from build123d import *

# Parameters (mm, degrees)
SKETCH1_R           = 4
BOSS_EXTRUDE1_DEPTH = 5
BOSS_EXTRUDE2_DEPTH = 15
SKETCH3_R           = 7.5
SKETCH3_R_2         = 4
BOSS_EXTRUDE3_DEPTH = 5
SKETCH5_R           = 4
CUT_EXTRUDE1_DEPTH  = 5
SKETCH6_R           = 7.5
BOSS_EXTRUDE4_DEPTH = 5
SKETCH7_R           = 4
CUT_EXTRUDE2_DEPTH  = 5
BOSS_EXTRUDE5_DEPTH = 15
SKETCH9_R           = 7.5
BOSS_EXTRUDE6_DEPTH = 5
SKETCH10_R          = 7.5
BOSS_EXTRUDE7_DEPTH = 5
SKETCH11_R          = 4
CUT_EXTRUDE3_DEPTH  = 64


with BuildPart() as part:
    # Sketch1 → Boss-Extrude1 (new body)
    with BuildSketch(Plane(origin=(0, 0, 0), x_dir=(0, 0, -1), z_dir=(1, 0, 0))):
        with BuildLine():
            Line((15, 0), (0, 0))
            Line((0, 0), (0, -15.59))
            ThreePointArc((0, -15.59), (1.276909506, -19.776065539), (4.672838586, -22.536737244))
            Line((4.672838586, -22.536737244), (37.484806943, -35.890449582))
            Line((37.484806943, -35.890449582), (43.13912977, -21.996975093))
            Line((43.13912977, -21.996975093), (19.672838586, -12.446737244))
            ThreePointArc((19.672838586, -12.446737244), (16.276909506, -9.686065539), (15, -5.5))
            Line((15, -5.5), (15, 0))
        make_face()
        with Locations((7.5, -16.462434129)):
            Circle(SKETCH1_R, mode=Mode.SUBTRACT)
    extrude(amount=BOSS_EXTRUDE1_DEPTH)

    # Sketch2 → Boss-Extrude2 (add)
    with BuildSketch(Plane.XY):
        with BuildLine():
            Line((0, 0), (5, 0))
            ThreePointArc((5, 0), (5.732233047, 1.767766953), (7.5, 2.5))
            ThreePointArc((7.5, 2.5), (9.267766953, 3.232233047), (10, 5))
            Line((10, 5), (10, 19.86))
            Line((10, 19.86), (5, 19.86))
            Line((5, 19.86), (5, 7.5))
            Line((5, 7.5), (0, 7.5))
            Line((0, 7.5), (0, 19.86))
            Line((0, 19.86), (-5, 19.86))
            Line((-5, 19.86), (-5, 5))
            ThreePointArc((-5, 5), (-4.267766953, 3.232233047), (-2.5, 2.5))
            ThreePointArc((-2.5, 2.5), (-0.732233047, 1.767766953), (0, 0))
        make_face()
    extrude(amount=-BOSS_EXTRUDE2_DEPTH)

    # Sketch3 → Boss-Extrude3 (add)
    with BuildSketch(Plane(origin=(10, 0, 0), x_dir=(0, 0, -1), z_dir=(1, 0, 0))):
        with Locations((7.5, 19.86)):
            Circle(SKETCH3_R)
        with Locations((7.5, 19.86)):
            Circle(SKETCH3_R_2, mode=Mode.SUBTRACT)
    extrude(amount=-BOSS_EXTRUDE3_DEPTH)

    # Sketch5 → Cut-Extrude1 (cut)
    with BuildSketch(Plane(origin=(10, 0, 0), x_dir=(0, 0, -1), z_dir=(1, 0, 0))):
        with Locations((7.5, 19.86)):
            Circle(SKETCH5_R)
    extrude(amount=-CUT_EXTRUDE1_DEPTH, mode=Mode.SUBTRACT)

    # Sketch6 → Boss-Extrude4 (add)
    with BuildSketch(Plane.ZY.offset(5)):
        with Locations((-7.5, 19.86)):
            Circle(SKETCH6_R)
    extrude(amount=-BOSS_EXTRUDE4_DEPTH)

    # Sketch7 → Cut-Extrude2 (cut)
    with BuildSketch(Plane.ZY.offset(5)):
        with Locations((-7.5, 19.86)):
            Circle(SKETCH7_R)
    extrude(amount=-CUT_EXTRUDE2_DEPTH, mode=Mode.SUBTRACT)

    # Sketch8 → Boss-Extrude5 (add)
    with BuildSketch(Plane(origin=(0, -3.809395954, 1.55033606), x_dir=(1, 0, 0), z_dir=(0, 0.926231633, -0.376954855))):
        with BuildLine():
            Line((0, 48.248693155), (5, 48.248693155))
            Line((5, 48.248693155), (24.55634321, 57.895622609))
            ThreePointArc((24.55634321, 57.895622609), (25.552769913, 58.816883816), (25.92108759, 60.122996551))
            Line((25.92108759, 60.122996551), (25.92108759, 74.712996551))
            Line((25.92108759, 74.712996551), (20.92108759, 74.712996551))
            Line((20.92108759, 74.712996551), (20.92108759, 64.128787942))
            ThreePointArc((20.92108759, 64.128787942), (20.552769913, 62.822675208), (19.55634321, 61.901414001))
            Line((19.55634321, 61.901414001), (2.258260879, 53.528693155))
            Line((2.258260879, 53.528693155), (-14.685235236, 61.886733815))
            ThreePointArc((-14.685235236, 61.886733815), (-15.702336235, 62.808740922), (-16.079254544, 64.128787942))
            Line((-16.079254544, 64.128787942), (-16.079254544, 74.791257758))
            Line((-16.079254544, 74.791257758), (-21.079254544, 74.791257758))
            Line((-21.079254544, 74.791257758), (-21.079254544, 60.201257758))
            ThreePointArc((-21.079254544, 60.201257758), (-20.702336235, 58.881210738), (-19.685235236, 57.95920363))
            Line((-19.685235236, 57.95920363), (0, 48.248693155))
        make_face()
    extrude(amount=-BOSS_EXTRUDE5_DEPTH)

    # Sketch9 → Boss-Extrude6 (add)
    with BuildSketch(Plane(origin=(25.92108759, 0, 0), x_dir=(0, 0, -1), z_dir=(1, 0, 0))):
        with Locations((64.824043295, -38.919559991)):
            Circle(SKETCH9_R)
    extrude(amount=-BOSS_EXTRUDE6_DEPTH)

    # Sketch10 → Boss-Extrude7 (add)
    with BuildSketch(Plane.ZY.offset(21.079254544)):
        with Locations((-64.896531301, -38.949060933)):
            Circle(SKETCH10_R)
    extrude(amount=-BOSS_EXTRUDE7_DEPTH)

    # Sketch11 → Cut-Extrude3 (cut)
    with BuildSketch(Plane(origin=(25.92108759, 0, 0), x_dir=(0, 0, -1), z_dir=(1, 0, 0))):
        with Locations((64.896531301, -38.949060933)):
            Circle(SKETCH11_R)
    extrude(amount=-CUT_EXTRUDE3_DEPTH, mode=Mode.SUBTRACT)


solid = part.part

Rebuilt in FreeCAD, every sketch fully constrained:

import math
import FreeCAD as App
import Part
import Sketcher

doc = App.newDocument("Part")
body = doc.addObject("PartDesign::Body", "Body")

# Sketch on YZ plane
sketch1 = body.newObject("Sketcher::SketchObject", "Sketch")
sketch1.AttachmentSupport = (doc.getObject("YZ_Plane"), [""])
sketch1.MapMode = "FlatFace"
sketch1.addGeometry(Part.LineSegment(App.Vector(0, -15, 0), App.Vector(0, 0, 0)), False)
sketch1.addGeometry(Part.LineSegment(App.Vector(0, 0, 0), App.Vector(-15.59, 0, 0)), False)
sketch1.addGeometry(Part.ArcOfCircle(Part.Circle(App.Vector(-15.59, -7.5, 0), App.Vector(0, 0, 1), 7.5), math.radians(90), math.radians(157.854814)), False)
sketch1.addGeometry(Part.LineSegment(App.Vector(-22.536737, -4.672839, 0), App.Vector(-35.89045, -37.484807, 0)), False)
sketch1.addGeometry(Part.LineSegment(App.Vector(-35.89045, -37.484807, 0), App.Vector(-21.996975, -43.13913, 0)), False)
sketch1.addGeometry(Part.LineSegment(App.Vector(-21.996975, -43.13913, 0), App.Vector(-12.446737, -19.672839, 0)), False)
sketch1.addGeometry(Part.ArcOfCircle(Part.Circle(App.Vector(-5.5, -22.5, 0), App.Vector(0, 0, 1), 7.5), math.radians(90), math.radians(157.854814)), False)
sketch1.addGeometry(Part.LineSegment(App.Vector(-5.5, -15, 0), App.Vector(0, -15, 0)), False)
sketch1.addGeometry(Part.Circle(App.Vector(-16.462434, -7.5, 0), App.Vector(0, 0, 1), 4), False)
sketch1.addConstraint(Sketcher.Constraint("Coincident", 0, 2, 1, 1))
sketch1.addConstraint(Sketcher.Constraint("Tangent", 1, 2, 2, 1))
sketch1.addConstraint(Sketcher.Constraint("Tangent", 2, 2, 3, 1))
sketch1.addConstraint(Sketcher.Constraint("Coincident", 3, 2, 4, 1))
sketch1.addConstraint(Sketcher.Constraint("Coincident", 4, 2, 5, 1))
sketch1.addConstraint(Sketcher.Constraint("Tangent", 5, 2, 6, 2))
sketch1.addConstraint(Sketcher.Constraint("Tangent", 6, 1, 7, 1))
sketch1.addConstraint(Sketcher.Constraint("Coincident", 7, 2, 0, 1))
sketch1.addConstraint(Sketcher.Constraint("Vertical", 0))
sketch1.addConstraint(Sketcher.Constraint("Horizontal", 1))
sketch1.addConstraint(Sketcher.Constraint("Horizontal", 7))
sketch1.addConstraint(Sketcher.Constraint("Coincident", 0, 2, -1, 1))
sketch1.addConstraint(Sketcher.Constraint("Equal", 2, 6))
sketch1.addConstraint(Sketcher.Constraint("Perpendicular", 3, 4))
sketch1.addConstraint(Sketcher.Constraint("Perpendicular", 4, 5))
sketch1.addConstraint(Sketcher.Constraint("Horizontal", 2, 3, 8, 3))
sketch1.addConstraint(Sketcher.Constraint("Diameter", 8, 8.0))
sketch1.addConstraint(Sketcher.Constraint("Radius", 2, 7.5))
sketch1.addConstraint(Sketcher.Constraint("DistanceY", 0, 1, 0, 2, 15.0))
sketch1.addConstraint(Sketcher.Constraint("Distance", 4, 15.0))
sketch1.addConstraint(Sketcher.Constraint("DistanceX", 7, 1, 7, 2, 5.5))
sketch1.addConstraint(Sketcher.Constraint("DistanceX", 1, 2, 1, 1, 15.59))
sketch1.addConstraint(Sketcher.Constraint("Distance", 3, 35.42523))
sketch1.addConstraint(Sketcher.Constraint("DistanceX", 4, 2, 8, 3, 5.534541))
pad1 = body.newObject("PartDesign::Pad", "Pad")
pad1.Profile = sketch1
pad1.Length = 5

# Sketch on XY plane
sketch2 = body.newObject("Sketcher::SketchObject", "Sketch001")
sketch2.AttachmentSupport = (doc.getObject("XY_Plane"), [""])
sketch2.MapMode = "FlatFace"
sketch2.addGeometry(Part.LineSegment(App.Vector(0, 0, 0), App.Vector(5, 0, 0)), False)
sketch2.addGeometry(Part.ArcOfCircle(Part.Circle(App.Vector(7.5, 0, 0), App.Vector(0, 0, 1), 2.5), math.radians(90), math.radians(180)), False)
sketch2.addGeometry(Part.ArcOfCircle(Part.Circle(App.Vector(7.5, 5, 0), App.Vector(0, 0, 1), 2.5), math.radians(-90), math.radians(0)), False)
sketch2.addGeometry(Part.LineSegment(App.Vector(10, 5, 0), App.Vector(10, 19.86, 0)), False)
sketch2.addGeometry(Part.LineSegment(App.Vector(10, 19.86, 0), App.Vector(5, 19.86, 0)), False)
sketch2.addGeometry(Part.LineSegment(App.Vector(5, 19.86, 0), App.Vector(5, 7.5, 0)), False)
sketch2.addGeometry(Part.LineSegment(App.Vector(5, 7.5, 0), App.Vector(0, 7.5, 0)), False)
sketch2.addGeometry(Part.LineSegment(App.Vector(0, 7.5, 0), App.Vector(0, 19.86, 0)), False)
sketch2.addGeometry(Part.LineSegment(App.Vector(0, 19.86, 0), App.Vector(-5, 19.86, 0)), False)
sketch2.addGeometry(Part.LineSegment(App.Vector(-5, 19.86, 0), App.Vector(-5, 5, 0)), False)
sketch2.addGeometry(Part.ArcOfCircle(Part.Circle(App.Vector(-2.5, 5, 0), App.Vector(0, 0, 1), 2.5), math.radians(180), math.radians(270)), False)
sketch2.addGeometry(Part.ArcOfCircle(Part.Circle(App.Vector(-2.5, 0, 0), App.Vector(0, 0, 1), 2.5), math.radians(0), math.radians(90)), False)
sketch2.addConstraint(Sketcher.Constraint("Coincident", 0, 2, 1, 2))
sketch2.addConstraint(Sketcher.Constraint("Tangent", 1, 1, 2, 1))
sketch2.addConstraint(Sketcher.Constraint("Tangent", 2, 2, 3, 1))
sketch2.addConstraint(Sketcher.Constraint("Coincident", 3, 2, 4, 1))
sketch2.addConstraint(Sketcher.Constraint("Coincident", 4, 2, 5, 1))
sketch2.addConstraint(Sketcher.Constraint("Coincident", 5, 2, 6, 1))
sketch2.addConstraint(Sketcher.Constraint("Coincident", 6, 2, 7, 1))
sketch2.addConstraint(Sketcher.Constraint("Coincident", 7, 2, 8, 1))
sketch2.addConstraint(Sketcher.Constraint("Coincident", 8, 2, 9, 1))
sketch2.addConstraint(Sketcher.Constraint("Tangent", 9, 2, 10, 1))
sketch2.addConstraint(Sketcher.Constraint("Tangent", 10, 2, 11, 2))
sketch2.addConstraint(Sketcher.Constraint("Coincident", 11, 1, 0, 1))
sketch2.addConstraint(Sketcher.Constraint("Horizontal", 0))
sketch2.addConstraint(Sketcher.Constraint("Vertical", 3))
sketch2.addConstraint(Sketcher.Constraint("Horizontal", 4))
sketch2.addConstraint(Sketcher.Constraint("Vertical", 5))
sketch2.addConstraint(Sketcher.Constraint("Horizontal", 6))
sketch2.addConstraint(Sketcher.Constraint("Vertical", 7))
sketch2.addConstraint(Sketcher.Constraint("Horizontal", 8))
sketch2.addConstraint(Sketcher.Constraint("Vertical", 9))
sketch2.addConstraint(Sketcher.Constraint("Coincident", 11, 1, -1, 1))
sketch2.addConstraint(Sketcher.Constraint("Equal", 1, 2))
sketch2.addConstraint(Sketcher.Constraint("Equal", 2, 10))
sketch2.addConstraint(Sketcher.Constraint("Equal", 10, 11))
sketch2.addConstraint(Sketcher.Constraint("Symmetric", 4, 2, 8, 2, -2))
sketch2.addConstraint(Sketcher.Constraint("PointOnObject", 1, 3, -1))
sketch2.addConstraint(Sketcher.Constraint("PointOnObject", 11, 3, -1))
sketch2.addConstraint(Sketcher.Constraint("PointOnObject", 6, 2, -2))
sketch2.addConstraint(Sketcher.Constraint("Vertical", 1, 3, 2, 3))
sketch2.addConstraint(Sketcher.Constraint("Vertical", 10, 3, 11, 3))
sketch2.addConstraint(Sketcher.Constraint("Vertical", 0, 2, 4, 2))
sketch2.addConstraint(Sketcher.Constraint("Radius", 1, 2.5))
sketch2.addConstraint(Sketcher.Constraint("DistanceY", 1, 1, 5, 2, 5.0))
sketch2.addConstraint(Sketcher.Constraint("DistanceY", 3, 1, 3, 2, 14.86))
pad2 = body.newObject("PartDesign::Pad", "Pad001")
pad2.Profile = sketch2
pad2.Length = 15
pad2.Reversed = True

# Sketch on YZ plane
sketch3 = body.newObject("Sketcher::SketchObject", "Sketch002")
sketch3.AttachmentSupport = (doc.getObject("YZ_Plane"), [""])
sketch3.MapMode = "FlatFace"
sketch3.AttachmentOffset = App.Placement(App.Vector(0, 0, 10), App.Rotation())
sketch3.addGeometry(Part.Circle(App.Vector(19.86, -7.5, 0), App.Vector(0, 0, 1), 7.5), False)
sketch3.addGeometry(Part.Circle(App.Vector(19.86, -7.5, 0), App.Vector(0, 0, 1), 4), False)
sketch3.addConstraint(Sketcher.Constraint("Coincident", 1, 3, 0, 3))
sketch3.addConstraint(Sketcher.Constraint("Diameter", 0, 15.0))
sketch3.addConstraint(Sketcher.Constraint("Diameter", 1, 8.0))
sketch3.addConstraint(Sketcher.Constraint("DistanceY", 0, 3, -1, 1, 7.5))
sketch3.addConstraint(Sketcher.Constraint("DistanceX", -1, 1, 0, 3, 19.86))
pad3 = body.newObject("PartDesign::Pad", "Pad002")
pad3.Profile = sketch3
pad3.Length = 5
pad3.Reversed = True

# Sketch on YZ plane
sketch4 = body.newObject("Sketcher::SketchObject", "Sketch003")
sketch4.AttachmentSupport = (doc.getObject("YZ_Plane"), [""])
sketch4.MapMode = "FlatFace"
sketch4.AttachmentOffset = App.Placement(App.Vector(0, 0, 10), App.Rotation())
sketch4.addGeometry(Part.Circle(App.Vector(19.86, -7.5, 0), App.Vector(0, 0, 1), 4), False)
sketch4.addConstraint(Sketcher.Constraint("Diameter", 0, 8.0))
sketch4.addConstraint(Sketcher.Constraint("DistanceY", 0, 3, -1, 1, 7.5))
sketch4.addConstraint(Sketcher.Constraint("DistanceX", -1, 1, 0, 3, 19.86))
pocket1 = body.newObject("PartDesign::Pocket", "Pocket")
pocket1.Profile = sketch4
pocket1.Length = 5

# Sketch on YZ plane
sketch5 = body.newObject("Sketcher::SketchObject", "Sketch004")
sketch5.AttachmentSupport = (doc.getObject("YZ_Plane"), [""])
sketch5.MapMode = "FlatFace"
sketch5.AttachmentOffset = App.Placement(App.Vector(0, 0, -5), App.Rotation())
sketch5.addGeometry(Part.Circle(App.Vector(19.86, -7.5, 0), App.Vector(0, 0, 1), 7.5), False)
sketch5.addConstraint(Sketcher.Constraint("Diameter", 0, 15.0))
sketch5.addConstraint(Sketcher.Constraint("DistanceY", 0, 3, -1, 1, 7.5))
sketch5.addConstraint(Sketcher.Constraint("DistanceX", -1, 1, 0, 3, 19.86))
pad4 = body.newObject("PartDesign::Pad", "Pad003")
pad4.Profile = sketch5
pad4.Length = 5

# Sketch on YZ plane
sketch6 = body.newObject("Sketcher::SketchObject", "Sketch005")
sketch6.AttachmentSupport = (doc.getObject("YZ_Plane"), [""])
sketch6.MapMode = "FlatFace"
sketch6.AttachmentOffset = App.Placement(App.Vector(0, 0, -5), App.Rotation())
sketch6.addGeometry(Part.Circle(App.Vector(19.86, -7.5, 0), App.Vector(0, 0, 1), 4), False)
sketch6.addConstraint(Sketcher.Constraint("Diameter", 0, 8.0))
sketch6.addConstraint(Sketcher.Constraint("DistanceY", 0, 3, -1, 1, 7.5))
sketch6.addConstraint(Sketcher.Constraint("DistanceX", -1, 1, 0, 3, 19.86))
pocket2 = body.newObject("PartDesign::Pocket", "Pocket001")
pocket2.Profile = sketch6
pocket2.Length = 5
pocket2.Reversed = True

# Sketch on an angled plane
sketch7 = body.newObject("Sketcher::SketchObject", "Sketch006")
sketch7.Placement = App.Placement(App.Vector(0, -3.809396, 1.550336), App.Rotation(App.Vector(1, 0, 0), App.Vector(0, -0.376954855, -0.926231633), App.Vector(0, 0.926231633, -0.376954855), "ZXY"))
sketch7.addGeometry(Part.LineSegment(App.Vector(0, 48.248693, 0), App.Vector(5, 48.248693, 0)), False)
sketch7.addGeometry(Part.LineSegment(App.Vector(5, 48.248693, 0), App.Vector(24.556343, 57.895623, 0)), False)
sketch7.addGeometry(Part.ArcOfCircle(Part.Circle(App.Vector(23.421088, 60.122997, 0), App.Vector(0, 0, 1), 2.5), math.radians(-62.992814), math.radians(0)), False)
sketch7.addGeometry(Part.LineSegment(App.Vector(25.921088, 60.122997, 0), App.Vector(25.921088, 74.712997, 0)), False)
sketch7.addGeometry(Part.LineSegment(App.Vector(25.921088, 74.712997, 0), App.Vector(20.921088, 74.712997, 0)), False)
sketch7.addGeometry(Part.LineSegment(App.Vector(20.921088, 74.712997, 0), App.Vector(20.921088, 64.128788, 0)), False)
sketch7.addGeometry(Part.ArcOfCircle(Part.Circle(App.Vector(18.421088, 64.128788, 0), App.Vector(0, 0, 1), 2.5), math.radians(-62.992814), math.radians(0)), False)
sketch7.addGeometry(Part.LineSegment(App.Vector(19.556343, 61.901414, 0), App.Vector(2.258261, 53.528693, 0)), False)
sketch7.addGeometry(Part.LineSegment(App.Vector(2.258261, 53.528693, 0), App.Vector(-14.685235, 61.886734, 0)), False)
sketch7.addGeometry(Part.ArcOfCircle(Part.Circle(App.Vector(-13.579255, 64.128788, 0), App.Vector(0, 0, 1), 2.5), math.radians(180), math.radians(243.743382)), False)
sketch7.addGeometry(Part.LineSegment(App.Vector(-16.079255, 64.128788, 0), App.Vector(-16.079255, 74.791258, 0)), False)
sketch7.addGeometry(Part.LineSegment(App.Vector(-16.079255, 74.791258, 0), App.Vector(-21.079255, 74.791258, 0)), False)
sketch7.addGeometry(Part.LineSegment(App.Vector(-21.079255, 74.791258, 0), App.Vector(-21.079255, 60.201258, 0)), False)
sketch7.addGeometry(Part.ArcOfCircle(Part.Circle(App.Vector(-18.579255, 60.201258, 0), App.Vector(0, 0, 1), 2.5), math.radians(180), math.radians(243.743382)), False)
sketch7.addGeometry(Part.LineSegment(App.Vector(-19.685235, 57.959204, 0), App.Vector(0, 48.248693, 0)), False)
sketch7.addConstraint(Sketcher.Constraint("Coincident", 0, 2, 1, 1))
sketch7.addConstraint(Sketcher.Constraint("Coincident", 1, 2, 2, 1))
sketch7.addConstraint(Sketcher.Constraint("Tangent", 2, 2, 3, 1))
sketch7.addConstraint(Sketcher.Constraint("Coincident", 3, 2, 4, 1))
sketch7.addConstraint(Sketcher.Constraint("Coincident", 4, 2, 5, 1))
sketch7.addConstraint(Sketcher.Constraint("Tangent", 5, 2, 6, 2))
sketch7.addConstraint(Sketcher.Constraint("Coincident", 6, 1, 7, 1))
sketch7.addConstraint(Sketcher.Constraint("Coincident", 7, 2, 8, 1))
sketch7.addConstraint(Sketcher.Constraint("Tangent", 8, 2, 9, 2))
sketch7.addConstraint(Sketcher.Constraint("Tangent", 9, 1, 10, 1))
sketch7.addConstraint(Sketcher.Constraint("Coincident", 10, 2, 11, 1))
sketch7.addConstraint(Sketcher.Constraint("Coincident", 11, 2, 12, 1))
sketch7.addConstraint(Sketcher.Constraint("Tangent", 12, 2, 13, 1))
sketch7.addConstraint(Sketcher.Constraint("Tangent", 13, 2, 14, 1))
sketch7.addConstraint(Sketcher.Constraint("Coincident", 14, 2, 0, 1))
sketch7.addConstraint(Sketcher.Constraint("Horizontal", 0))
sketch7.addConstraint(Sketcher.Constraint("Vertical", 3))
sketch7.addConstraint(Sketcher.Constraint("Horizontal", 4))
sketch7.addConstraint(Sketcher.Constraint("Vertical", 5))
sketch7.addConstraint(Sketcher.Constraint("Vertical", 10))
sketch7.addConstraint(Sketcher.Constraint("Horizontal", 11))
sketch7.addConstraint(Sketcher.Constraint("Vertical", 12))
sketch7.addConstraint(Sketcher.Constraint("Equal", 2, 6))
sketch7.addConstraint(Sketcher.Constraint("Equal", 6, 9))
sketch7.addConstraint(Sketcher.Constraint("Equal", 9, 13))
sketch7.addConstraint(Sketcher.Constraint("PointOnObject", 14, 2, -2))
sketch7.addConstraint(Sketcher.Constraint("Parallel", 8, 14))
sketch7.addConstraint(Sketcher.Constraint("Horizontal", 6, 3, 9, 3))
sketch7.addConstraint(Sketcher.Constraint("Equal", 0, 4))
sketch7.addConstraint(Sketcher.Constraint("Equal", 4, 11))
sketch7.addConstraint(Sketcher.Constraint("Equal", 3, 12))
sketch7.addConstraint(Sketcher.Constraint("Radius", 2, 2.5))
sketch7.addConstraint(Sketcher.Constraint("DistanceX", 0, 1, 0, 2, 5.0))
sketch7.addConstraint(Sketcher.Constraint("DistanceX", 6, 1, 1, 2, 5.0))
sketch7.addConstraint(Sketcher.Constraint("DistanceY", 3, 1, 3, 2, 14.59))
sketch7.addConstraint(Sketcher.Constraint("Distance", 14, 21.95))
sketch7.addConstraint(Sketcher.Constraint("DistanceY", 0, 2, 7, 2, 5.28))
sketch7.addConstraint(Sketcher.Constraint("DistanceY", 5, 2, 5, 1, 10.584209))
sketch7.addConstraint(Sketcher.Constraint("DistanceY", 10, 1, 10, 2, 10.66247))
sketch7.addConstraint(Sketcher.Constraint("Distance", 1, 21.806279))
sketch7.addConstraint(Sketcher.Constraint("Distance", 7, 19.217859))
sketch7.addConstraint(Sketcher.Constraint("DistanceY", 0, 2, 1, 2, 9.646929))
sketch7.addConstraint(Sketcher.Constraint("DistanceY", -1, 1, 2, 3, 60.122997))
pad5 = body.newObject("PartDesign::Pad", "Pad004")
pad5.Profile = sketch7
pad5.Length = 15
pad5.Reversed = True

# Sketch on YZ plane
sketch8 = body.newObject("Sketcher::SketchObject", "Sketch007")
sketch8.AttachmentSupport = (doc.getObject("YZ_Plane"), [""])
sketch8.MapMode = "FlatFace"
sketch8.AttachmentOffset = App.Placement(App.Vector(0, 0, 25.921088), App.Rotation())
sketch8.addGeometry(Part.Circle(App.Vector(-38.91956, -64.824043, 0), App.Vector(0, 0, 1), 7.5), False)
sketch8.addConstraint(Sketcher.Constraint("Diameter", 0, 15.0))
sketch8.addConstraint(Sketcher.Constraint("DistanceX", 0, 3, -1, 1, 38.91956))
sketch8.addConstraint(Sketcher.Constraint("DistanceY", 0, 3, -1, 1, 64.824043))
pad6 = body.newObject("PartDesign::Pad", "Pad005")
pad6.Profile = sketch8
pad6.Length = 5
pad6.Reversed = True

# Sketch on YZ plane
sketch9 = body.newObject("Sketcher::SketchObject", "Sketch008")
sketch9.AttachmentSupport = (doc.getObject("YZ_Plane"), [""])
sketch9.MapMode = "FlatFace"
sketch9.AttachmentOffset = App.Placement(App.Vector(0, 0, -21.079255), App.Rotation())
sketch9.addGeometry(Part.Circle(App.Vector(-38.949061, -64.896531, 0), App.Vector(0, 0, 1), 7.5), False)
sketch9.addConstraint(Sketcher.Constraint("Diameter", 0, 15.0))
sketch9.addConstraint(Sketcher.Constraint("DistanceX", 0, 3, -1, 1, 38.949061))
sketch9.addConstraint(Sketcher.Constraint("DistanceY", 0, 3, -1, 1, 64.896531))
pad7 = body.newObject("PartDesign::Pad", "Pad006")
pad7.Profile = sketch9
pad7.Length = 5

# Sketch on YZ plane
sketch10 = body.newObject("Sketcher::SketchObject", "Sketch009")
sketch10.AttachmentSupport = (doc.getObject("YZ_Plane"), [""])
sketch10.MapMode = "FlatFace"
sketch10.AttachmentOffset = App.Placement(App.Vector(0, 0, 25.921088), App.Rotation())
sketch10.addGeometry(Part.Circle(App.Vector(-38.949061, -64.896531, 0), App.Vector(0, 0, 1), 4), False)
sketch10.addConstraint(Sketcher.Constraint("Diameter", 0, 8.0))
sketch10.addConstraint(Sketcher.Constraint("DistanceX", 0, 3, -1, 1, 38.949061))
sketch10.addConstraint(Sketcher.Constraint("DistanceY", 0, 3, -1, 1, 64.896531))
pocket3 = body.newObject("PartDesign::Pocket", "Pocket002")
pocket3.Profile = sketch10
pocket3.Length = 64

doc.recompute()
